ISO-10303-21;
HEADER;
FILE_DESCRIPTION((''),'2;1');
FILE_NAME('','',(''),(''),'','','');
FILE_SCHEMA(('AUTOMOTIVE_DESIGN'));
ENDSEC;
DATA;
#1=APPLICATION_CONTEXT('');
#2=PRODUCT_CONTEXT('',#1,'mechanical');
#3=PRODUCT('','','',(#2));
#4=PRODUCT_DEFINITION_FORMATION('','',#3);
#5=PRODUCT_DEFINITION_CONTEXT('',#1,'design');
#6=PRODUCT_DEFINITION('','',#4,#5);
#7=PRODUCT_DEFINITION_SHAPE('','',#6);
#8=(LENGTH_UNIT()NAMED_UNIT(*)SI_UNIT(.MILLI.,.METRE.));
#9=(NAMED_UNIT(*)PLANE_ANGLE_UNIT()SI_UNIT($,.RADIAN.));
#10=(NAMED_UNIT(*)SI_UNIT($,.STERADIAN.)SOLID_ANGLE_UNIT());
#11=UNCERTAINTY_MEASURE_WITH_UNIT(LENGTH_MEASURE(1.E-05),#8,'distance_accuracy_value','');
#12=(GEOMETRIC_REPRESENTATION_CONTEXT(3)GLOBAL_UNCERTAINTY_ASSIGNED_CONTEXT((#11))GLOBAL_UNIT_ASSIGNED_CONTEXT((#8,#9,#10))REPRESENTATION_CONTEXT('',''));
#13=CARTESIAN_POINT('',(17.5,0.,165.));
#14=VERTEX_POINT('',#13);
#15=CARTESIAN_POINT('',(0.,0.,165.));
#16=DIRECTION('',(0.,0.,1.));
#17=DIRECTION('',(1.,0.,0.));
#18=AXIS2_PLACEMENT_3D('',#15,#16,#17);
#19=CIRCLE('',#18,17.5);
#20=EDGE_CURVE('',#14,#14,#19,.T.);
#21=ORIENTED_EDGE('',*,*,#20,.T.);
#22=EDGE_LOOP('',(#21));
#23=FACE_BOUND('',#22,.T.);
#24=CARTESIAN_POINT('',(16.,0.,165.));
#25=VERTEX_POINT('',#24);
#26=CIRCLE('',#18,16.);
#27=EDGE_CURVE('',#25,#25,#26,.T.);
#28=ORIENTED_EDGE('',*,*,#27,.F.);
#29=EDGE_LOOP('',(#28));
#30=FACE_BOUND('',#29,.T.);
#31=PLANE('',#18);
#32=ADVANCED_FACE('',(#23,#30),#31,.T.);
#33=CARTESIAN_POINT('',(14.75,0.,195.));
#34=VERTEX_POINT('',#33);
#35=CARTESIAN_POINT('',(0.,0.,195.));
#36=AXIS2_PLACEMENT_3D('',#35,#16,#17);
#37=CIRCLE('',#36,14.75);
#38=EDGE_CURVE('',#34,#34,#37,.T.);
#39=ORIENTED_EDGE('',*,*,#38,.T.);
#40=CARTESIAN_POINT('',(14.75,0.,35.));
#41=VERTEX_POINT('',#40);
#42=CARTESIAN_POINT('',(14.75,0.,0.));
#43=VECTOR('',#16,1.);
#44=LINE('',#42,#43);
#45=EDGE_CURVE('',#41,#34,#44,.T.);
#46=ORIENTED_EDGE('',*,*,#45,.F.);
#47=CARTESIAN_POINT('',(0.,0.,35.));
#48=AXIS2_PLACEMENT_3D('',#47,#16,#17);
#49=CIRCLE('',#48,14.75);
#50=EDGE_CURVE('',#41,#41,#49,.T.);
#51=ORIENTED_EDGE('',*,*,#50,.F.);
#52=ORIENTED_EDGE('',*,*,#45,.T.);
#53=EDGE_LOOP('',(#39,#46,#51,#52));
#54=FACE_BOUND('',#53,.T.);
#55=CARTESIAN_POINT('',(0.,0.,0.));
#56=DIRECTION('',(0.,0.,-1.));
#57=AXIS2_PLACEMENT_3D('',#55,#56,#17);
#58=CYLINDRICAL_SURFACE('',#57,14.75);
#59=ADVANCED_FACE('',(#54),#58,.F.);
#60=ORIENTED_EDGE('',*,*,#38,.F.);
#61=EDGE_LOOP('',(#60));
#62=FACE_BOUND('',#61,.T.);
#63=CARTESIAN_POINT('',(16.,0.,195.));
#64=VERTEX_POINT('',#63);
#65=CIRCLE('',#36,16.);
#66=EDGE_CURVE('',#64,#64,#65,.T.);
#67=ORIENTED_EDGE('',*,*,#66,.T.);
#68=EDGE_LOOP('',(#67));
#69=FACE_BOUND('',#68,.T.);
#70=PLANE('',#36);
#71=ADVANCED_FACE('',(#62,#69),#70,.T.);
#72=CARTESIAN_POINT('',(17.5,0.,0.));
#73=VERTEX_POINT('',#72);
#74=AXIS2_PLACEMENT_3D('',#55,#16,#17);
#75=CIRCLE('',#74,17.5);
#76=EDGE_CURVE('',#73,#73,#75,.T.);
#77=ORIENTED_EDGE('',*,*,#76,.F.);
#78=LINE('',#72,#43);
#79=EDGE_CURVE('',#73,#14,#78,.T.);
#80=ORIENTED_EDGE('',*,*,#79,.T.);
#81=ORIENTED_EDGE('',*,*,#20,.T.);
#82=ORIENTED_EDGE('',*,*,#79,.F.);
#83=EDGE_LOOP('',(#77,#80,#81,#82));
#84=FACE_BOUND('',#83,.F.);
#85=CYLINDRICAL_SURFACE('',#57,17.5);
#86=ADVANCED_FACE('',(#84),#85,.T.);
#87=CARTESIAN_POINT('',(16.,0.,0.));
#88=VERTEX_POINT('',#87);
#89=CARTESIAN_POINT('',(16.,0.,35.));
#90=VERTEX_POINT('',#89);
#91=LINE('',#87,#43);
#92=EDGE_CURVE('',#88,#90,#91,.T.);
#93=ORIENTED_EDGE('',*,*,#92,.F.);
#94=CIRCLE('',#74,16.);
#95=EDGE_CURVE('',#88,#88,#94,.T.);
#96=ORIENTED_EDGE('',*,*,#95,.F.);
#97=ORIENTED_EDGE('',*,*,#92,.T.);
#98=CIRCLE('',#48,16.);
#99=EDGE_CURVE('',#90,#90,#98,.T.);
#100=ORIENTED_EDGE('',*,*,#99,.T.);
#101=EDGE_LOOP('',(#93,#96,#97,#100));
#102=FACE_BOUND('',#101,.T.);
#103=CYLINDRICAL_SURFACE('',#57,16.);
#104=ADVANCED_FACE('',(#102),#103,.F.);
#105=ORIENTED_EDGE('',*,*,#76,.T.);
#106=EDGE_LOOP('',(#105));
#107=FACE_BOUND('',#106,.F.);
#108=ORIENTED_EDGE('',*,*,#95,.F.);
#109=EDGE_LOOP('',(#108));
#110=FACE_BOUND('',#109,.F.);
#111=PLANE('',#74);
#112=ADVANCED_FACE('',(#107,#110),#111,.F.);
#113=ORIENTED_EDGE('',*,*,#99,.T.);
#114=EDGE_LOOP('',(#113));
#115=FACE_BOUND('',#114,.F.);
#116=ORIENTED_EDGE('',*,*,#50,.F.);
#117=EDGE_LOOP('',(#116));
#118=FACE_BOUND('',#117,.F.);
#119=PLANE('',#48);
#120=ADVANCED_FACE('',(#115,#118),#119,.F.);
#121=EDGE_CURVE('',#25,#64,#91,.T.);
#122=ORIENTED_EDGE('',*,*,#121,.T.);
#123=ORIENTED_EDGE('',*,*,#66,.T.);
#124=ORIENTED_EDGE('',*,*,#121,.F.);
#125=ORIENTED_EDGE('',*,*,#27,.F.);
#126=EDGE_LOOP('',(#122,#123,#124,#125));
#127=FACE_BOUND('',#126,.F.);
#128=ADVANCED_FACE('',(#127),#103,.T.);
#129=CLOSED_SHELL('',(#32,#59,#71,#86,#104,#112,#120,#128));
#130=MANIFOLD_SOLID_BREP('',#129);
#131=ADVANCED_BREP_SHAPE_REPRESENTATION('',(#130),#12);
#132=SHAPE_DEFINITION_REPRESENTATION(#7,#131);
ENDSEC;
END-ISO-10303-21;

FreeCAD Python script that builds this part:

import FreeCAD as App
import Part
import Sketcher

V = App.Vector

doc = App.newDocument("Part")
body = doc.addObject("PartDesign::Body", "Body")

sketch1 = body.newObject("Sketcher::SketchObject", "Sketch")
sketch1.AttachmentSupport = (doc.getObject("XY_Plane"), [""])
sketch1.MapMode = "FlatFace"
sketch1.addGeometry([
    Part.Circle(V(0, 0, 0), V(0, 0, 1), 16),
    Part.Circle(V(0, 0, 0), V(0, 0, 1), 14.75),
], False)
sketch1.addConstraint([
    Sketcher.Constraint("Coincident", 0, 3, -1, 1),
    Sketcher.Constraint("Coincident", 1, 3, -1, 1),
    Sketcher.Constraint("Diameter", 0, 32.0),
    Sketcher.Constraint("Diameter", 1, 29.5),
])
pad1 = body.newObject("PartDesign::Pad", "Pad")
pad1.Profile = sketch1
pad1.Length = 195

sketch2 = body.newObject("Sketcher::SketchObject", "Sketch001")
sketch2.AttachmentSupport = (doc.getObject("XY_Plane"), [""])
sketch2.MapMode = "FlatFace"
sketch2.addGeometry([
    Part.Circle(V(0, 0, 0), V(0, 0, 1), 17.5),
    Part.Circle(V(0, 0, 0), V(0, 0, 1), 16),
], False)
sketch2.addConstraint([
    Sketcher.Constraint("Coincident", 0, 3, -1, 1),
    Sketcher.Constraint("Coincident", 1, 3, -1, 1),
    Sketcher.Constraint("Diameter", 0, 35.0),
    Sketcher.Constraint("Diameter", 1, 32.0),
])
pad2 = body.newObject("PartDesign::Pad", "Pad001")
pad2.Profile = sketch2
pad2.Length = 165

sketch3 = body.newObject("Sketcher::SketchObject", "Sketch002")
sketch3.AttachmentSupport = (doc.getObject("XY_Plane"), [""])
sketch3.MapMode = "FlatFace"
sketch3.addGeometry([
    Part.Circle(V(0, 0, 0), V(0, 0, 1), 16),
    Part.Circle(V(0, 0, 0), V(0, 0, 1), 14.75),
], False)
sketch3.addConstraint([
    Sketcher.Constraint("Coincident", 0, 3, -1, 1),
    Sketcher.Constraint("Coincident", 1, 3, -1, 1),
    Sketcher.Constraint("Diameter", 0, 32.0),
    Sketcher.Constraint("Diameter", 1, 29.5),
])
pocket1 = body.newObject("PartDesign::Pocket", "Pocket")
pocket1.Profile = sketch3
pocket1.Length = 35
pocket1.Reversed = True

doc.recompute()
